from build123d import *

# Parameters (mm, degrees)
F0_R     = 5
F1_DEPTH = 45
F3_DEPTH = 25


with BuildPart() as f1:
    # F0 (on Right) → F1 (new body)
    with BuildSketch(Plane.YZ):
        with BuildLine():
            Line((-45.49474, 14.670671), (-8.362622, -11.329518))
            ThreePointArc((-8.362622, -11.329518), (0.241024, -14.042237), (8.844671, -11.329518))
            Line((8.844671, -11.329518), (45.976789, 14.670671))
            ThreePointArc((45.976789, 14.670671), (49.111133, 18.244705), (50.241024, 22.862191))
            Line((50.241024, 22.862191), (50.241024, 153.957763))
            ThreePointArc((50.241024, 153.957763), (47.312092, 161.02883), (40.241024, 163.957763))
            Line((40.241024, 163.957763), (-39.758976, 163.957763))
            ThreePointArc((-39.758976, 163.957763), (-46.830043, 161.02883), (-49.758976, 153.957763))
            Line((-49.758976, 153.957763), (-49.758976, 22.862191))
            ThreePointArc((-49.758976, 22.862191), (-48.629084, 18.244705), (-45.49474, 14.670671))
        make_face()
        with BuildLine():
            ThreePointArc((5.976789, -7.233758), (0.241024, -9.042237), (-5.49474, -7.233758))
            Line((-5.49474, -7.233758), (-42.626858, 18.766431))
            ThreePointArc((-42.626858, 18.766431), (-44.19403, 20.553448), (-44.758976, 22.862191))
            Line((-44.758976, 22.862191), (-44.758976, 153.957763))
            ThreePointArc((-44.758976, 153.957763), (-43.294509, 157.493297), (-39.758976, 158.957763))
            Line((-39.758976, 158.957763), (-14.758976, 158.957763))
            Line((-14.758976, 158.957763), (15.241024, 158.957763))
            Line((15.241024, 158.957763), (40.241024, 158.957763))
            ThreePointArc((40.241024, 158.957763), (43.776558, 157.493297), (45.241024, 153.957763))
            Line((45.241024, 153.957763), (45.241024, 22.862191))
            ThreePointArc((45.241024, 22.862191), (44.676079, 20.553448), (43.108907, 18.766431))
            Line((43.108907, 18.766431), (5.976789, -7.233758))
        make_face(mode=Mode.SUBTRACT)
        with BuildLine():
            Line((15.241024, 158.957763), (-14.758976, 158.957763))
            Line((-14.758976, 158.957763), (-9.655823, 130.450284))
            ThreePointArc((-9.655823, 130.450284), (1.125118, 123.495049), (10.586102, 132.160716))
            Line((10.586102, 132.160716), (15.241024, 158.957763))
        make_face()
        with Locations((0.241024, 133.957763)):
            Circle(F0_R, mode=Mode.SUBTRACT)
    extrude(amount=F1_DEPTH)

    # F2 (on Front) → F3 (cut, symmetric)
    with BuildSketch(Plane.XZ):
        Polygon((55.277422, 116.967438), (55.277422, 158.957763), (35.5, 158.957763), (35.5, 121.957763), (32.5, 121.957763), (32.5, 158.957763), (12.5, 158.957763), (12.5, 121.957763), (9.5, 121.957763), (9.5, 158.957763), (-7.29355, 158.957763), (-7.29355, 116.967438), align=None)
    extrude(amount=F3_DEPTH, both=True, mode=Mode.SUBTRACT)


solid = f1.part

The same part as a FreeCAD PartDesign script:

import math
import FreeCAD as App
import Part
import Sketcher

V = App.Vector
Q = App.Units.Quantity


def add_polygon(sketch, points):
    """Adds a closed chain of lines whose ends are joined by coincident constraints."""
    first, n = sketch.GeometryCount, len(points)
    for a, b in zip(points, points[1:] + points[:1]):
        sketch.addGeometry(Part.LineSegment(App.Vector(*a, 0), App.Vector(*b, 0)), False)
    for i in range(n):
        sketch.addConstraint(Sketcher.Constraint("Coincident", first + i, 2, first + (i + 1) % n, 1))

doc = App.newDocument("Part")
body = doc.addObject("PartDesign::Body", "Body")

sketch1 = body.newObject("Sketcher::SketchObject", "Sketch")
sketch1.AttachmentSupport = (doc.getObject("YZ_Plane"), [""])
sketch1.MapMode = "FlatFace"
sketch1.addGeometry([
    Part.LineSegment(V(-45.5, 14.7, 0), V(-8.4, -11.3, 0)),
    Part.ArcOfCircle(Part.Circle(V(0.2, 1, 0), V(0, 0, 1), 15), math.radians(-125), math.radians(-55)),
    Part.LineSegment(V(8.8, -11.3, 0), V(46, 14.7, 0)),
    Part.ArcOfCircle(Part.Circle(V(40.2, 22.9, 0), V(0, 0, 1), 10), math.radians(-55), math.radians(0)),
    Part.LineSegment(V(50.2, 22.9, 0), V(50.2, 154, 0)),
    Part.ArcOfCircle(Part.Circle(V(40.2, 154, 0), V(0, 0, 1), 10), math.radians(0), math.radians(90)),
    Part.LineSegment(V(40.2, 164, 0), V(-39.8, 164, 0)),
    Part.ArcOfCircle(Part.Circle(V(-39.8, 154, 0), V(0, 0, 1), 10), math.radians(90), math.radians(180)),
    Part.LineSegment(V(-49.8, 154, 0), V(-49.8, 22.9, 0)),
    Part.ArcOfCircle(Part.Circle(V(-39.8, 22.9, 0), V(0, 0, 1), 10), math.radians(-180), math.radians(-125)),
    Part.Circle(V(0.2, 134, 0), V(0, 0, 1), 5),
    Part.LineSegment(V(43.1, 18.8, 0), V(6, -7.2, 0)),
    Part.ArcOfCircle(Part.Circle(V(0.2, 1, 0), V(0, 0, 1), 10), math.radians(-125), math.radians(-55)),
    Part.LineSegment(V(-5.5, -7.2, 0), V(-42.6, 18.8, 0)),
    Part.ArcOfCircle(Part.Circle(V(-39.8, 22.9, 0), V(0, 0, 1), 5), math.radians(-180), math.radians(-125)),
    Part.LineSegment(V(-44.8, 22.9, 0), V(-44.8, 154, 0)),
    Part.ArcOfCircle(Part.Circle(V(-39.8, 154, 0), V(0, 0, 1), 5), math.radians(90), math.radians(180)),
    Part.LineSegment(V(-39.8, 159, 0), V(-14.8, 159, 0)),
    Part.LineSegment(V(-14.8, 159, 0), V(-9.7, 130.5, 0)),
    Part.ArcOfCircle(Part.Circle(V(0.2, 134, 0), V(0, 0, 1), 10.5), math.radians(-160), math.radians(-10)),
    Part.LineSegment(V(10.6, 132.2, 0), V(15.2, 159, 0)),
    Part.LineSegment(V(15.2, 159, 0), V(40.2, 159, 0)),
    Part.ArcOfCircle(Part.Circle(V(40.2, 154, 0), V(0, 0, 1), 5), math.radians(0), math.radians(90)),
    Part.LineSegment(V(45.2, 154, 0), V(45.2, 22.9, 0)),
    Part.ArcOfCircle(Part.Circle(V(40.2, 22.9, 0), V(0, 0, 1), 5), math.radians(-55), math.radians(0)),
], False)
sketch1.addConstraint([
    Sketcher.Constraint("Tangent", 0, 2, 1, 1),
    Sketcher.Constraint("Tangent", 1, 2, 2, 1),
    Sketcher.Constraint("Tangent", 2, 2, 3, 1),
    Sketcher.Constraint("Tangent", 3, 2, 4, 1),
    Sketcher.Constraint("Tangent", 4, 2, 5, 1),
    Sketcher.Constraint("Tangent", 5, 2, 6, 1),
    Sketcher.Constraint("Tangent", 6, 2, 7, 1),
    Sketcher.Constraint("Tangent", 7, 2, 8, 1),
    Sketcher.Constraint("Tangent", 8, 2, 9, 1),
    Sketcher.Constraint("Tangent", 9, 2, 0, 1),
    Sketcher.Constraint("Tangent", 11, 2, 12, 2),
    Sketcher.Constraint("Tangent", 12, 1, 13, 1),
    Sketcher.Constraint("Tangent", 13, 2, 14, 2),
    Sketcher.Constraint("Tangent", 14, 1, 15, 1),
    Sketcher.Constraint("Tangent", 15, 2, 16, 2),
    Sketcher.Constraint("Tangent", 16, 1, 17, 1),
    Sketcher.Constraint("Coincident", 17, 2, 18, 1),
    Sketcher.Constraint("Coincident", 18, 2, 19, 1),
    Sketcher.Constraint("Tangent", 19, 2, 20, 1),
    Sketcher.Constraint("Coincident", 20, 2, 21, 1),
    Sketcher.Constraint("Tangent", 21, 2, 22, 2),
    Sketcher.Constraint("Tangent", 22, 1, 23, 1),
    Sketcher.Constraint("Tangent", 23, 2, 24, 2),
    Sketcher.Constraint("Tangent", 24, 1, 11, 1),
    Sketcher.Constraint("Vertical", 4),
    Sketcher.Constraint("Horizontal", 6),
    Sketcher.Constraint("Vertical", 8),
    Sketcher.Constraint("Vertical", 15),
    Sketcher.Constraint("Horizontal", 17),
    Sketcher.Constraint("Horizontal", 21),
    Sketcher.Constraint("Vertical", 23),
    Sketcher.Constraint("Coincident", 12, 3, 1, 3),
    Sketcher.Constraint("Coincident", 14, 3, 9, 3),
    Sketcher.Constraint("Coincident", 16, 3, 7, 3),
    Sketcher.Constraint("Coincident", 19, 3, 10, 3),
    Sketcher.Constraint("Coincident", 22, 3, 5, 3),
    Sketcher.Constraint("Coincident", 24, 3, 3, 3),
    Sketcher.Constraint("Equal", 5, 7),
    Sketcher.Constraint("Equal", 5, 9),
    Sketcher.Constraint("Equal", 7, 12),
    Sketcher.Constraint("Equal", 10, 14),
    Sketcher.Constraint("Equal", 16, 22),
    Sketcher.Constraint("Parallel", 2, 11),
    Sketcher.Constraint("Horizontal", 0, 2, 1, 2),
    Sketcher.Constraint("Horizontal", 14, 3, 3, 2),
    Sketcher.Constraint("Horizontal", 2, 2, 9, 2),
    Sketcher.Constraint("Vertical", 1, 3, 10, 3),
    Sketcher.Constraint("Equal", 17, 21),
    Sketcher.Constraint("Diameter", 10, Q("10 mm")),
    Sketcher.Constraint("Radius", 1, Q("15.000001 mm")),
    Sketcher.Constraint("Radius", 19, Q("10.5 mm")),
    Sketcher.Constraint("DistanceX", 6, 2, 6, 1, Q("80 mm")),
    Sketcher.Constraint("DistanceX", 17, 1, 17, 2, Q("25 mm")),
    Sketcher.Constraint("Angle", 0, Q("-35 deg")),
    Sketcher.Constraint("DistanceY", 10, 3, 5, 3, Q("19.999999 mm")),
    Sketcher.Constraint("DistanceY", 1, 3, 10, 3, Q("132.999999 mm")),
    Sketcher.Constraint("DistanceX", -1, 1, 19, 2, Q("10.586102 mm")),
    Sketcher.Constraint("DistanceY", -1, 1, 3, 3, Q("22.862189 mm")),
    Sketcher.Constraint("DistanceY", 18, 2, 10, 3, Q("3.507479 mm")),
])
pad1 = body.newObject("PartDesign::Pad", "Pad")
pad1.Profile = sketch1
pad1.Length = 45

sketch2 = body.newObject("Sketcher::SketchObject", "Sketch001")
sketch2.AttachmentSupport = (doc.getObject("XZ_Plane"), [""])
sketch2.MapMode = "FlatFace"
add_polygon(sketch2, [(55.3, 117), (55.3, 159), (35.5, 159), (35.5, 122), (32.5, 122), (32.5, 159), (12.5, 159), (12.5, 122), (9.5, 122), (9.5, 159), (-7.3, 159), (-7.3, 117)])
sketch2.addConstraint([
    Sketcher.Constraint("Vertical", 0),
    Sketcher.Constraint("Horizontal", 1),
    Sketcher.Constraint("Vertical", 2),
    Sketcher.Constraint("Horizontal", 3),
    Sketcher.Constraint("Vertical", 4),
    Sketcher.Constraint("Horizontal", 5),
    Sketcher.Constraint("Vertical", 6),
    Sketcher.Constraint("Horizontal", 7),
    Sketcher.Constraint("Vertical", 8),
    Sketcher.Constraint("Horizontal", 9),
    Sketcher.Constraint("Vertical", 10),
    Sketcher.Constraint("Horizontal", 11),
    Sketcher.Constraint("Horizontal", 1, 2, 4, 2),
    Sketcher.Constraint("Horizontal", 3, 2, 6, 2),
    Sketcher.Constraint("Horizontal", 5, 2, 8, 2),
    Sketcher.Constraint("Equal", 3, 7),
    Sketcher.Constraint("DistanceX", 3, 2, 3, 1, Q("3 mm")),
    Sketcher.Constraint("DistanceX", 5, 2, 5, 1, Q("20 mm")),
    Sketcher.Constraint("DistanceY", 2, 2, 2, 1, Q("37 mm")),
    Sketcher.Constraint("DistanceX", -1, 1, 1, 2, Q("35.5 mm")),
    Sketcher.Constraint("DistanceX", 9, 2, 9, 1, Q("16.79355 mm")),
    Sketcher.Constraint("DistanceX", 11, 1, 11, 2, Q("62.570972 mm")),
    Sketcher.Constraint("DistanceY", 0, 1, 0, 2, Q("41.990325 mm")),
    Sketcher.Constraint("DistanceY", -1, 1, 10, 2, Q("116.967438 mm")),
])
pocket1 = body.newObject("PartDesign::Pocket", "Pocket")
pocket1.Profile = sketch2
pocket1.Length = 50
pocket1.Midplane = True

doc.recompute()
